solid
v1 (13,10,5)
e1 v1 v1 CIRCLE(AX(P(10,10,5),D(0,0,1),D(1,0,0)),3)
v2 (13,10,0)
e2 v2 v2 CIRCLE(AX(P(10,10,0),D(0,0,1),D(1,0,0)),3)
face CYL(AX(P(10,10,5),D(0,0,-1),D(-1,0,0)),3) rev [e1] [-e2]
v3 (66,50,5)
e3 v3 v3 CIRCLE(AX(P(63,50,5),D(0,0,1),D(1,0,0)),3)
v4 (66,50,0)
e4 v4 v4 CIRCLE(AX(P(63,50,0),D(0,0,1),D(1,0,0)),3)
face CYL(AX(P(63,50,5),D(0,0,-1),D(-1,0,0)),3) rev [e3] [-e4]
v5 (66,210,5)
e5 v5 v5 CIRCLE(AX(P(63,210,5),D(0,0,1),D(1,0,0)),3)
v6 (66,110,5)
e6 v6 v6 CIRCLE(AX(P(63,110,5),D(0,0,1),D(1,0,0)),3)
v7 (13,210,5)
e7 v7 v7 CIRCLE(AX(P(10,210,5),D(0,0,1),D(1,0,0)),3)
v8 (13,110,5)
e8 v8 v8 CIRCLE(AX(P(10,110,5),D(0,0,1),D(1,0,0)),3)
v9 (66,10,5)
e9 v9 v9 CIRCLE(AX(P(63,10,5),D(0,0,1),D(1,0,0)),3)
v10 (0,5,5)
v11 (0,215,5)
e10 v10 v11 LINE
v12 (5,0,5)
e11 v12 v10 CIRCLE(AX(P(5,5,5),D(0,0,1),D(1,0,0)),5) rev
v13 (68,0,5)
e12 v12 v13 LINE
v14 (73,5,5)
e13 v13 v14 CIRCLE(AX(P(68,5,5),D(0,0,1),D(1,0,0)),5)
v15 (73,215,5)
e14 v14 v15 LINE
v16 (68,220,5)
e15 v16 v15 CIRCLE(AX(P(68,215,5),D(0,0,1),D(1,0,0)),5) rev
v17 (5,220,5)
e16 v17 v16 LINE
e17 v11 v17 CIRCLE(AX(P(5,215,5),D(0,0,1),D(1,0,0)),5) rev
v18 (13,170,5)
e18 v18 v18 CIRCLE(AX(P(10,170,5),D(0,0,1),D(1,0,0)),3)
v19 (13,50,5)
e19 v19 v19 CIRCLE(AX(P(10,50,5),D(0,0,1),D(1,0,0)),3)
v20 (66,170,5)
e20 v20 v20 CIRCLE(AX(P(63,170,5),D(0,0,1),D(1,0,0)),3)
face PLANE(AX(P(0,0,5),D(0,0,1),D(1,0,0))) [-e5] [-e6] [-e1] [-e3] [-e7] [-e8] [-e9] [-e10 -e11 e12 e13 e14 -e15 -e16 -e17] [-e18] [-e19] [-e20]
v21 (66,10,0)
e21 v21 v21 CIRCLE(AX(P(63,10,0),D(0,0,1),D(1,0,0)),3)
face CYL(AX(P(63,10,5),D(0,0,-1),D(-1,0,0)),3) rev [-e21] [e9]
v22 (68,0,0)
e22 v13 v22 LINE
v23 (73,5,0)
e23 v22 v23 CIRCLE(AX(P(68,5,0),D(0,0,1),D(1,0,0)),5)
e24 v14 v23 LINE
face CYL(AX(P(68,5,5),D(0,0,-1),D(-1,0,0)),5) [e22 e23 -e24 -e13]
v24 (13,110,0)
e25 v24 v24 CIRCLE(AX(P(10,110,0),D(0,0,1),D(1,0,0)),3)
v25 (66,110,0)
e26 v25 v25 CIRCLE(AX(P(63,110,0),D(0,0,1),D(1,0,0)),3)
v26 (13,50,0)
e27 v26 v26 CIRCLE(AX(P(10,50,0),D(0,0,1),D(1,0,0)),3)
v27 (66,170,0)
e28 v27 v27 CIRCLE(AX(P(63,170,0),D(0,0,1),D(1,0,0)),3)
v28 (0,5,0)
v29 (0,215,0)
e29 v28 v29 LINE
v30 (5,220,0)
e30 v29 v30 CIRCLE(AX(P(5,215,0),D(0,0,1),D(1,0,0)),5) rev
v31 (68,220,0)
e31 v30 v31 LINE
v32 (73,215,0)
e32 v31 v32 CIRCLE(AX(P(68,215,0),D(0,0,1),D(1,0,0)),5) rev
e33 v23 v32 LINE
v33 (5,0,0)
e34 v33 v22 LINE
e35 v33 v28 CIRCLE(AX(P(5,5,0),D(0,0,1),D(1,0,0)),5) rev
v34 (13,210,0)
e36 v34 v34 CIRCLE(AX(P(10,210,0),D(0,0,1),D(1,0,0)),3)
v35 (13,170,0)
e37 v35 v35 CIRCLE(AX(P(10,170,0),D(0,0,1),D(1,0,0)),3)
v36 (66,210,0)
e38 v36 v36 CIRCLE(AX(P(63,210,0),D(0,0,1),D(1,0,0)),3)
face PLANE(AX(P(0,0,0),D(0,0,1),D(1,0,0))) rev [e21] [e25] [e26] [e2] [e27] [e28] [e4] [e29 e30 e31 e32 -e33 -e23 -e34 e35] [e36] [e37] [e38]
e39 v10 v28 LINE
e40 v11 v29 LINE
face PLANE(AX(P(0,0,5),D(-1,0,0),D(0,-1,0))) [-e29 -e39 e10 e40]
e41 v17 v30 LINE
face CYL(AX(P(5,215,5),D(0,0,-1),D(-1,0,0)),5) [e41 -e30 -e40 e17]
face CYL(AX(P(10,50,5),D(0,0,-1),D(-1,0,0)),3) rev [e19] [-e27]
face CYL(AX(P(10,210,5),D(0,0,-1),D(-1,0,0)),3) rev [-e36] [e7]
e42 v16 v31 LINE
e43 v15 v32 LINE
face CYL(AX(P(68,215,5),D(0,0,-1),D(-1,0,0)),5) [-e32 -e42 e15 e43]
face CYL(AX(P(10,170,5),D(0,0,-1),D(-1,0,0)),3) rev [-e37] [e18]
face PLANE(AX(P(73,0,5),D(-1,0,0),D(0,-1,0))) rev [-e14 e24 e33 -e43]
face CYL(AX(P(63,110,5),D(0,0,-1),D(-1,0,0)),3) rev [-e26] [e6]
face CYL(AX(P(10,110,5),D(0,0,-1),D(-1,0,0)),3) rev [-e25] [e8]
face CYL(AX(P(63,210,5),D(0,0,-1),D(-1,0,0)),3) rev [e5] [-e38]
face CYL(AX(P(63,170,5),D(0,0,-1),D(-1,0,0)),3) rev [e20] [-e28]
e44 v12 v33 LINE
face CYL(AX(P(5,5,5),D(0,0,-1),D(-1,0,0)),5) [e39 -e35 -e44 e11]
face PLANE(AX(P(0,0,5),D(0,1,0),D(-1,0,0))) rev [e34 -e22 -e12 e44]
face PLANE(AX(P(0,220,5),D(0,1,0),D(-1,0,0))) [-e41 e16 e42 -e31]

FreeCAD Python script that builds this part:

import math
import FreeCAD as App
import Part
import Sketcher
from FreeCAD import Vector

doc = App.newDocument("Part")
params = doc.addObject("Spreadsheet::Sheet", "Params")
for row, (alias, value) in enumerate([
    ("sketch1_diameter", "6 mm"),
    ("sketch1_radius", "5 mm"),
    ("sketch1_width", "63 mm"),
    ("sketch1_height", "210 mm"),
    ("pad1_length", "5 mm"),
], start=1):
    params.set(f"A{row}", alias)
    params.set(f"B{row}", "=" + value)
    params.setAlias(f"B{row}", alias)

body = doc.addObject("PartDesign::Body", "Body")

# Sketch on XY plane
sketch1 = doc.addObject("Sketcher::SketchObject", "Sketch")
body.addObject(sketch1)
sketch1.AttachmentSupport = (doc.XY_Plane, [""])
sketch1.MapMode = "FlatFace"
sketch1.addGeometry([
    Part.LineSegment(Vector(5, 0, 0), Vector(68, 0, 0)),  # 0
    Part.ArcOfCircle(Part.Circle(Vector(68, 5, 0), Vector(0, 0, 1), 5), math.radians(-90), math.radians(0)),  # 1
    Part.LineSegment(Vector(73, 5, 0), Vector(73, 215, 0)),  # 2
    Part.ArcOfCircle(Part.Circle(Vector(68, 215, 0), Vector(0, 0, 1), 5), math.radians(0), math.radians(90)),  # 3
    Part.LineSegment(Vector(68, 220, 0), Vector(5, 220, 0)),  # 4
    Part.ArcOfCircle(Part.Circle(Vector(5, 215, 0), Vector(0, 0, 1), 5), math.radians(90), math.radians(180)),  # 5
    Part.LineSegment(Vector(0, 215, 0), Vector(0, 5, 0)),  # 6
    Part.ArcOfCircle(Part.Circle(Vector(5, 5, 0), Vector(0, 0, 1), 5), math.radians(180), math.radians(270)),  # 7
    Part.Circle(Vector(10, 10, 0), Vector(0, 0, 1), 3),  # 8
    Part.Circle(Vector(10, 50, 0), Vector(0, 0, 1), 3),  # 9
    Part.Circle(Vector(10, 110, 0), Vector(0, 0, 1), 3),  # 10
    Part.Circle(Vector(63, 10, 0), Vector(0, 0, 1), 3),  # 11
    Part.Circle(Vector(63, 50, 0), Vector(0, 0, 1), 3),  # 12
    Part.Circle(Vector(63, 110, 0), Vector(0, 0, 1), 3),  # 13
    Part.Circle(Vector(10, 170, 0), Vector(0, 0, 1), 3),  # 14
    Part.Circle(Vector(10, 210, 0), Vector(0, 0, 1), 3),  # 15
    Part.Circle(Vector(63, 170, 0), Vector(0, 0, 1), 3),  # 16
    Part.Circle(Vector(63, 210, 0), Vector(0, 0, 1), 3),  # 17
], False)
sketch1.addConstraint([
    Sketcher.Constraint("Tangent", 0, 2, 1, 1),
    Sketcher.Constraint("Tangent", 1, 2, 2, 1),
    Sketcher.Constraint("Tangent", 2, 2, 3, 1),
    Sketcher.Constraint("Tangent", 3, 2, 4, 1),
    Sketcher.Constraint("Tangent", 4, 2, 5, 1),
    Sketcher.Constraint("Tangent", 5, 2, 6, 1),
    Sketcher.Constraint("Tangent", 6, 2, 7, 1),
    Sketcher.Constraint("Tangent", 7, 2, 0, 1),
    Sketcher.Constraint("Horizontal", 0),
    Sketcher.Constraint("Vertical", 2),
    Sketcher.Constraint("Horizontal", 4),
    Sketcher.Constraint("Vertical", 6),
    Sketcher.Constraint("Equal", 1, 3),
    Sketcher.Constraint("Equal", 3, 5),
    Sketcher.Constraint("Equal", 5, 7),
    Sketcher.Constraint("Equal", 8, 9),
    Sketcher.Constraint("Equal", 9, 10),
    Sketcher.Constraint("Equal", 10, 11),
    Sketcher.Constraint("Equal", 11, 12),
    Sketcher.Constraint("Equal", 12, 13),
    Sketcher.Constraint("Equal", 13, 14),
    Sketcher.Constraint("Equal", 14, 15),
    Sketcher.Constraint("Equal", 15, 16),
    Sketcher.Constraint("Equal", 16, 17),
    Sketcher.Constraint("PointOnObject", 0, 2, -1),
    Sketcher.Constraint("PointOnObject", 5, 2, -2),
    Sketcher.Constraint("Horizontal", 8, 3, 11, 3),
    Sketcher.Constraint("Horizontal", 9, 3, 12, 3),
    Sketcher.Constraint("Horizontal", 10, 3, 13, 3),
    Sketcher.Constraint("Horizontal", 14, 3, 16, 3),
    Sketcher.Constraint("Horizontal", 15, 3, 17, 3),
    Sketcher.Constraint("Vertical", 8, 3, 9, 3),
    Sketcher.Constraint("Vertical", 9, 3, 10, 3),
    Sketcher.Constraint("Vertical", 11, 3, 12, 3),
    Sketcher.Constraint("Vertical", 12, 3, 13, 3),
    Sketcher.Constraint("Vertical", 10, 3, 14, 3),
    Sketcher.Constraint("Vertical", 14, 3, 15, 3),
    Sketcher.Constraint("Vertical", 13, 3, 16, 3),
    Sketcher.Constraint("Vertical", 16, 3, 17, 3),
    Sketcher.Constraint("Diameter", 8, 6.0),
    Sketcher.Constraint("Radius", 1, 5.0),
    Sketcher.Constraint("DistanceX", 0, 1, 0, 2, 63.0),
    Sketcher.Constraint("DistanceY", 2, 1, 2, 2, 210.0),
    Sketcher.Constraint("DistanceX", -1, 1, 8, 3, 10.0),
    Sketcher.Constraint("DistanceY", -1, 1, 8, 3, 10.0),
    Sketcher.Constraint("DistanceY", -1, 1, 9, 3, 50.0),
    Sketcher.Constraint("DistanceY", -1, 1, 10, 3, 110.0),
    Sketcher.Constraint("DistanceX", -1, 1, 11, 3, 63.0),
    Sketcher.Constraint("DistanceY", -1, 1, 14, 3, 170.0),
    Sketcher.Constraint("DistanceY", -1, 1, 15, 3, 210.0),
])
sketch1.setExpression("Constraints[39]", "Params.sketch1_diameter")
sketch1.setExpression("Constraints[40]", "Params.sketch1_radius")
sketch1.setExpression("Constraints[41]", "Params.sketch1_width")
sketch1.setExpression("Constraints[42]", "Params.sketch1_height")
pad1 = doc.addObject("PartDesign::Pad", "Pad")
body.addObject(pad1)
pad1.Profile = sketch1
pad1.setExpression("Length", "Params.pad1_length")

doc.recompute()
